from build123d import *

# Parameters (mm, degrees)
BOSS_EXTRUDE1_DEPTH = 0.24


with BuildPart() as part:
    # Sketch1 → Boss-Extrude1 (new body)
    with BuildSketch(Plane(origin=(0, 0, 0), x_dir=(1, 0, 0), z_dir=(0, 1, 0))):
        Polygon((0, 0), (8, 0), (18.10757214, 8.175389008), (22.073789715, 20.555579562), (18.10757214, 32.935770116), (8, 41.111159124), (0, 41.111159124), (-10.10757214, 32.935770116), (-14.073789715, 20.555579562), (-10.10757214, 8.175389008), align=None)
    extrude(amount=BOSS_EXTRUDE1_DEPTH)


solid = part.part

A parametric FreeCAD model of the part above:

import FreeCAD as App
import Part
import Sketcher

V = App.Vector
Q = App.Units.Quantity

doc = App.newDocument("Part")
body = doc.addObject("PartDesign::Body", "Body")

sketch1 = body.newObject("Sketcher::SketchObject", "Sketch")
sketch1.AttachmentSupport = (doc.getObject("XZ_Plane"), [""])
sketch1.MapMode = "FlatFace"
sketch1.addGeometry([
    Part.LineSegment(V(0, 0, 0), V(8, 0, 0)),
    Part.LineSegment(V(8, 0, 0), V(18, -8, 0)),
    Part.LineSegment(V(18, -8, 0), V(22, -21, 0)),
    Part.LineSegment(V(22, -21, 0), V(18, -33, 0)),
    Part.LineSegment(V(18, -33, 0), V(8, -41, 0)),
    Part.LineSegment(V(8, -41, 0), V(0, -41, 0)),
    Part.LineSegment(V(0, -41, 0), V(-10, -33, 0)),
    Part.LineSegment(V(-10, -33, 0), V(-14, -21, 0)),
    Part.LineSegment(V(-14, -21, 0), V(-10, -8, 0)),
    Part.LineSegment(V(-10, -8, 0), V(0, 0, 0)),
], False)
sketch1.addConstraint([
    Sketcher.Constraint("Coincident", 0, 2, 1, 1),
    Sketcher.Constraint("Coincident", 1, 2, 2, 1),
    Sketcher.Constraint("Coincident", 2, 2, 3, 1),
    Sketcher.Constraint("Coincident", 3, 2, 4, 1),
    Sketcher.Constraint("Coincident", 4, 2, 5, 1),
    Sketcher.Constraint("Coincident", 5, 2, 6, 1),
    Sketcher.Constraint("Coincident", 6, 2, 7, 1),
    Sketcher.Constraint("Coincident", 7, 2, 8, 1),
    Sketcher.Constraint("Coincident", 8, 2, 9, 1),
    Sketcher.Constraint("Coincident", 9, 2, 0, 1),
    Sketcher.Constraint("Horizontal", 0),
    Sketcher.Constraint("Horizontal", 5),
    Sketcher.Constraint("Coincident", 9, 2, -1, 1),
    Sketcher.Constraint("PointOnObject", 5, 2, -2),
    Sketcher.Constraint("Parallel", 1, 6),
    Sketcher.Constraint("Parallel", 2, 7),
    Sketcher.Constraint("Parallel", 3, 8),
    Sketcher.Constraint("Parallel", 4, 9),
    Sketcher.Constraint("Horizontal", 3, 2, 6, 2),
    Sketcher.Constraint("Horizontal", 2, 2, 7, 2),
    Sketcher.Constraint("Horizontal", 1, 2, 8, 2),
    Sketcher.Constraint("Vertical", 1, 2, 3, 2),
    Sketcher.Constraint("Vertical", 0, 2, 4, 2),
    Sketcher.Constraint("Vertical", 6, 2, 8, 2),
    Sketcher.Constraint("Equal", 1, 2),
    Sketcher.Constraint("DistanceX", 0, 1, 0, 2, Q("8 mm")),
    Sketcher.Constraint("Distance", 1, Q("13 mm")),
    Sketcher.Constraint("DistanceY", 1, 2, -1, 1, Q("8.175389 mm")),
    Sketcher.Constraint("DistanceX", -1, 1, 2, 2, Q("22.07379 mm")),
])
pad1 = body.newObject("PartDesign::Pad", "Pad")
pad1.Profile = sketch1
pad1.Length = 0.24
pad1.Reversed = True

doc.recompute()
